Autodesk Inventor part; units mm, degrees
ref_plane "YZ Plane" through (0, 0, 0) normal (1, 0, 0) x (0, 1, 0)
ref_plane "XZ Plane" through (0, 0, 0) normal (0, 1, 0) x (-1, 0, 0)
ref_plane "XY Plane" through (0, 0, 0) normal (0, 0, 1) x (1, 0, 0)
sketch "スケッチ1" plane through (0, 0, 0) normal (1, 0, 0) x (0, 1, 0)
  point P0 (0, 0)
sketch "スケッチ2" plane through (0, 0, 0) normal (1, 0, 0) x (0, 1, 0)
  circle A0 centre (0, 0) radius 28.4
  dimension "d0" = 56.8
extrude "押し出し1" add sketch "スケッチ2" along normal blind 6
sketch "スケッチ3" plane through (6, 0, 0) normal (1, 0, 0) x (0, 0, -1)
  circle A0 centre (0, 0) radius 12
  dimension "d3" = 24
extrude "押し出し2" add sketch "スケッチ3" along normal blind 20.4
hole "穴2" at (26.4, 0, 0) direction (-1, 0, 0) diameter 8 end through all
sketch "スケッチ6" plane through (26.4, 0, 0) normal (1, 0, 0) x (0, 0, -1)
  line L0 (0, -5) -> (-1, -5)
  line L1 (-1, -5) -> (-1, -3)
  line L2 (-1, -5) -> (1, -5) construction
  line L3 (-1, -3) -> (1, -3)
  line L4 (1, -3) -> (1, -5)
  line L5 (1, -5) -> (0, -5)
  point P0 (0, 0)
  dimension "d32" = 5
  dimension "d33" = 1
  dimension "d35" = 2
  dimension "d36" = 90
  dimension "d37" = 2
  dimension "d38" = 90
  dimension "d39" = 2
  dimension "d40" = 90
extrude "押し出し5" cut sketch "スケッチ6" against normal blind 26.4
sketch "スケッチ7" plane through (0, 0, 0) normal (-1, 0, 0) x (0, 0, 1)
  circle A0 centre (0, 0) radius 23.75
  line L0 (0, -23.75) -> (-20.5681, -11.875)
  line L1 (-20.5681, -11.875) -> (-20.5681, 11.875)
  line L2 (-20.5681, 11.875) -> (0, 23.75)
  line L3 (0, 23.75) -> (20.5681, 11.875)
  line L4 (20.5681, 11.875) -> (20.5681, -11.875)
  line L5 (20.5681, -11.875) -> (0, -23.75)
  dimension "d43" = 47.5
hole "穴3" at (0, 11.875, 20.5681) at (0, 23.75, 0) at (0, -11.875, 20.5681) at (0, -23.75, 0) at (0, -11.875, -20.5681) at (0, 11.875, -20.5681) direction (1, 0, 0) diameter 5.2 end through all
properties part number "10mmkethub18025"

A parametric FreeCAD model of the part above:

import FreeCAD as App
import Part
import Sketcher


def add_polygon(sketch, points):
    """Adds a closed chain of lines whose ends are joined by coincident constraints."""
    first, n = sketch.GeometryCount, len(points)
    for a, b in zip(points, points[1:] + points[:1]):
        sketch.addGeometry(Part.LineSegment(App.Vector(*a, 0), App.Vector(*b, 0)), False)
    for i in range(n):
        sketch.addConstraint(Sketcher.Constraint("Coincident", first + i, 2, first + (i + 1) % n, 1))

doc = App.newDocument("Part")
body = doc.addObject("PartDesign::Body", "Body")

sketch1 = body.newObject("Sketcher::SketchObject", "Sketch")
sketch1.AttachmentSupport = (doc.getObject("YZ_Plane"), [""])
sketch1.MapMode = "FlatFace"
sketch1.addGeometry(Part.Circle(App.Vector(0, 0, 0), App.Vector(0, 0, 1), 28), False)
sketch1.addConstraint([
    Sketcher.Constraint("Coincident", 0, 3, -1, 1),
    Sketcher.Constraint("Diameter", 0, 56.8),
])
pad1 = body.newObject("PartDesign::Pad", "Pad")
pad1.Profile = sketch1
pad1.Length = 6

sketch2 = body.newObject("Sketcher::SketchObject", "Sketch001")
sketch2.AttachmentSupport = (doc.getObject("YZ_Plane"), [""])
sketch2.MapMode = "FlatFace"
sketch2.AttachmentOffset = App.Placement(App.Vector(0, 0, 6), App.Rotation())
sketch2.addGeometry(Part.Circle(App.Vector(0, 0, 0), App.Vector(0, 0, 1), 12), False)
sketch2.addConstraint([
    Sketcher.Constraint("Coincident", 0, 3, -1, 1),
    Sketcher.Constraint("Diameter", 0, 24.0),
])
pad2 = body.newObject("PartDesign::Pad", "Pad001")
pad2.Profile = sketch2
pad2.Length = 20.4

sketch3 = body.newObject("Sketcher::SketchObject", "Sketch002")
sketch3.AttachmentSupport = (doc.getObject("YZ_Plane"), [""])
sketch3.MapMode = "FlatFace"
sketch3.AttachmentOffset = App.Placement(App.Vector(0, 0, 26.4), App.Rotation())
sketch3.addGeometry(Part.Circle(App.Vector(0, 0, 0), App.Vector(0, 0, 1), 4), False)
sketch3.addConstraint([
    Sketcher.Constraint("Coincident", 0, 3, -1, 1),
    Sketcher.Constraint("Diameter", 0, 8.0),
])
doc.recompute()
hole = body.newObject("PartDesign::Hole", "Hole")
hole.Profile = sketch3
hole.ThreadType = "None"
hole.Diameter = 8
hole.DepthType = "ThroughAll"

sketch4 = body.newObject("Sketcher::SketchObject", "Sketch003")
sketch4.AttachmentSupport = (doc.getObject("YZ_Plane"), [""])
sketch4.MapMode = "FlatFace"
sketch4.AttachmentOffset = App.Placement(App.Vector(0, 0, 26.4), App.Rotation())
add_polygon(sketch4, [(-5, 1), (-5, -1), (-3, -1), (-3, 1)])
sketch4.addConstraint([
    Sketcher.Constraint("Vertical", 0),
    Sketcher.Constraint("Horizontal", 1),
    Sketcher.Constraint("Vertical", 2),
    Sketcher.Constraint("Horizontal", 3),
    Sketcher.Constraint("Equal", 3, 0),
    Sketcher.Constraint("DistanceX", 1, 1, 1, 2, 2.0),
    Sketcher.Constraint("DistanceX", 0, 2, -1, 1, 5.0),
    Sketcher.Constraint("DistanceY", 0, 2, -1, 1, 1.0),
])
pocket1 = body.newObject("PartDesign::Pocket", "Pocket")
pocket1.Profile = sketch4
pocket1.Length = 26.4

sketch5 = body.newObject("Sketcher::SketchObject", "Sketch004")
sketch5.AttachmentSupport = (doc.getObject("YZ_Plane"), [""])
sketch5.MapMode = "FlatFace"
sketch5.addGeometry([
    Part.Circle(App.Vector(11.9, 20.6, 0), App.Vector(0, 0, 1), 2.6),
    Part.Circle(App.Vector(23.8, 0, 0), App.Vector(0, 0, 1), 2.6),
    Part.Circle(App.Vector(-11.9, 20.6, 0), App.Vector(0, 0, 1), 2.6),
    Part.Circle(App.Vector(-23.8, 0, 0), App.Vector(0, 0, 1), 2.6),
    Part.Circle(App.Vector(-11.9, -20.6, 0), App.Vector(0, 0, 1), 2.6),
    Part.Circle(App.Vector(11.9, -20.6, 0), App.Vector(0, 0, 1), 2.6),
], False)
sketch5.addConstraint([
    Sketcher.Constraint("Equal", 0, 1),
    Sketcher.Constraint("Equal", 1, 2),
    Sketcher.Constraint("Equal", 2, 3),
    Sketcher.Constraint("Equal", 3, 4),
    Sketcher.Constraint("Equal", 4, 5),
    Sketcher.Constraint("Symmetric", 1, 3, 3, 3, -1, 1),
    Sketcher.Constraint("Symmetric", 0, 3, 4, 3, -1, 1),
    Sketcher.Constraint("Symmetric", 2, 3, 5, 3, -1, 1),
    Sketcher.Constraint("Symmetric", 0, 3, 2, 3, -2),
    Sketcher.Constraint("PointOnObject", 1, 3, -1),
    Sketcher.Constraint("Diameter", 0, 5.2),
    Sketcher.Constraint("DistanceX", 3, 3, 1, 3, 47.5),
    Sketcher.Constraint("DistanceX", 2, 3, 0, 3, 23.75),
    Sketcher.Constraint("DistanceY", -1, 1, 0, 3, 20.568),
])
doc.recompute()
hole2 = body.newObject("PartDesign::Hole", "Hole001")
hole2.Profile = sketch5
hole2.ThreadType = "None"
hole2.Diameter = 5.2
hole2.DepthType = "ThroughAll"
hole2.Reversed = True

doc.recompute()
